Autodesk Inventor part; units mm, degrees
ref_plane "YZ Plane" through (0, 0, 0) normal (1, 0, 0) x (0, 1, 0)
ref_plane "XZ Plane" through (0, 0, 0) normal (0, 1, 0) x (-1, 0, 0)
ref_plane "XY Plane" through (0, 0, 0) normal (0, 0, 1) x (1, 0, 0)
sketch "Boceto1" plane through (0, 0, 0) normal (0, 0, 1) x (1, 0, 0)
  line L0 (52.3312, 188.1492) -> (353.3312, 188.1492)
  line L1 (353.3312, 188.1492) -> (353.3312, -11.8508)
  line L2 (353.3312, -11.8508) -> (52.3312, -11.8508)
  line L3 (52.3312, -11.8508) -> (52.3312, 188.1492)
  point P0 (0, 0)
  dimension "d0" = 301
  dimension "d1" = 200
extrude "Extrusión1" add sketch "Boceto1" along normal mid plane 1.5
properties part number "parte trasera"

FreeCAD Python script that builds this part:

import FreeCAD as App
import Part
import Sketcher

doc = App.newDocument("Part")
params = doc.addObject("Spreadsheet::Sheet", "Params")
for row, (alias, value) in enumerate([
    ("sketch1_width", "301 mm"),
    ("sketch1_height", "200 mm"),
    ("pad1_length", "1.5 mm"),
], start=1):
    params.set(f"A{row}", alias)
    params.set(f"B{row}", "=" + value)
    params.setAlias(f"B{row}", alias)

body = doc.addObject("PartDesign::Body", "Body")

sketch1 = body.newObject("Sketcher::SketchObject", "Sketch")
sketch1.AttachmentSupport = (doc.getObject("XY_Plane"), [""])
sketch1.MapMode = "FlatFace"
sketch1.addGeometry([
    Part.LineSegment(App.Vector(353, 188, 0), App.Vector(52, 188, 0)),
    Part.LineSegment(App.Vector(52, 188, 0), App.Vector(52, -12, 0)),
    Part.LineSegment(App.Vector(52, -12, 0), App.Vector(353, -12, 0)),
    Part.LineSegment(App.Vector(353, -12, 0), App.Vector(353, 188, 0)),
], False)
sketch1.addConstraint([
    Sketcher.Constraint("Coincident", 0, 2, 1, 1),
    Sketcher.Constraint("Coincident", 1, 2, 2, 1),
    Sketcher.Constraint("Coincident", 2, 2, 3, 1),
    Sketcher.Constraint("Coincident", 3, 2, 0, 1),
    Sketcher.Constraint("Horizontal", 0),
    Sketcher.Constraint("Vertical", 1),
    Sketcher.Constraint("Horizontal", 2),
    Sketcher.Constraint("Vertical", 3),
    Sketcher.Constraint("DistanceX", 0, 2, 0, 1, 301.0),
    Sketcher.Constraint("DistanceY", 1, 2, 1, 1, 200.0),
    Sketcher.Constraint("DistanceX", -1, 1, 0, 2, 52.3312),
    Sketcher.Constraint("DistanceY", -1, 1, 0, 2, 188.1492),
])
sketch1.setExpression("Constraints[8]", "Params.sketch1_width")
sketch1.setExpression("Constraints[9]", "Params.sketch1_height")
pad1 = body.newObject("PartDesign::Pad", "Pad")
pad1.Profile = sketch1
pad1.setExpression("Length", "Params.pad1_length")
pad1.Midplane = True

doc.recompute()
